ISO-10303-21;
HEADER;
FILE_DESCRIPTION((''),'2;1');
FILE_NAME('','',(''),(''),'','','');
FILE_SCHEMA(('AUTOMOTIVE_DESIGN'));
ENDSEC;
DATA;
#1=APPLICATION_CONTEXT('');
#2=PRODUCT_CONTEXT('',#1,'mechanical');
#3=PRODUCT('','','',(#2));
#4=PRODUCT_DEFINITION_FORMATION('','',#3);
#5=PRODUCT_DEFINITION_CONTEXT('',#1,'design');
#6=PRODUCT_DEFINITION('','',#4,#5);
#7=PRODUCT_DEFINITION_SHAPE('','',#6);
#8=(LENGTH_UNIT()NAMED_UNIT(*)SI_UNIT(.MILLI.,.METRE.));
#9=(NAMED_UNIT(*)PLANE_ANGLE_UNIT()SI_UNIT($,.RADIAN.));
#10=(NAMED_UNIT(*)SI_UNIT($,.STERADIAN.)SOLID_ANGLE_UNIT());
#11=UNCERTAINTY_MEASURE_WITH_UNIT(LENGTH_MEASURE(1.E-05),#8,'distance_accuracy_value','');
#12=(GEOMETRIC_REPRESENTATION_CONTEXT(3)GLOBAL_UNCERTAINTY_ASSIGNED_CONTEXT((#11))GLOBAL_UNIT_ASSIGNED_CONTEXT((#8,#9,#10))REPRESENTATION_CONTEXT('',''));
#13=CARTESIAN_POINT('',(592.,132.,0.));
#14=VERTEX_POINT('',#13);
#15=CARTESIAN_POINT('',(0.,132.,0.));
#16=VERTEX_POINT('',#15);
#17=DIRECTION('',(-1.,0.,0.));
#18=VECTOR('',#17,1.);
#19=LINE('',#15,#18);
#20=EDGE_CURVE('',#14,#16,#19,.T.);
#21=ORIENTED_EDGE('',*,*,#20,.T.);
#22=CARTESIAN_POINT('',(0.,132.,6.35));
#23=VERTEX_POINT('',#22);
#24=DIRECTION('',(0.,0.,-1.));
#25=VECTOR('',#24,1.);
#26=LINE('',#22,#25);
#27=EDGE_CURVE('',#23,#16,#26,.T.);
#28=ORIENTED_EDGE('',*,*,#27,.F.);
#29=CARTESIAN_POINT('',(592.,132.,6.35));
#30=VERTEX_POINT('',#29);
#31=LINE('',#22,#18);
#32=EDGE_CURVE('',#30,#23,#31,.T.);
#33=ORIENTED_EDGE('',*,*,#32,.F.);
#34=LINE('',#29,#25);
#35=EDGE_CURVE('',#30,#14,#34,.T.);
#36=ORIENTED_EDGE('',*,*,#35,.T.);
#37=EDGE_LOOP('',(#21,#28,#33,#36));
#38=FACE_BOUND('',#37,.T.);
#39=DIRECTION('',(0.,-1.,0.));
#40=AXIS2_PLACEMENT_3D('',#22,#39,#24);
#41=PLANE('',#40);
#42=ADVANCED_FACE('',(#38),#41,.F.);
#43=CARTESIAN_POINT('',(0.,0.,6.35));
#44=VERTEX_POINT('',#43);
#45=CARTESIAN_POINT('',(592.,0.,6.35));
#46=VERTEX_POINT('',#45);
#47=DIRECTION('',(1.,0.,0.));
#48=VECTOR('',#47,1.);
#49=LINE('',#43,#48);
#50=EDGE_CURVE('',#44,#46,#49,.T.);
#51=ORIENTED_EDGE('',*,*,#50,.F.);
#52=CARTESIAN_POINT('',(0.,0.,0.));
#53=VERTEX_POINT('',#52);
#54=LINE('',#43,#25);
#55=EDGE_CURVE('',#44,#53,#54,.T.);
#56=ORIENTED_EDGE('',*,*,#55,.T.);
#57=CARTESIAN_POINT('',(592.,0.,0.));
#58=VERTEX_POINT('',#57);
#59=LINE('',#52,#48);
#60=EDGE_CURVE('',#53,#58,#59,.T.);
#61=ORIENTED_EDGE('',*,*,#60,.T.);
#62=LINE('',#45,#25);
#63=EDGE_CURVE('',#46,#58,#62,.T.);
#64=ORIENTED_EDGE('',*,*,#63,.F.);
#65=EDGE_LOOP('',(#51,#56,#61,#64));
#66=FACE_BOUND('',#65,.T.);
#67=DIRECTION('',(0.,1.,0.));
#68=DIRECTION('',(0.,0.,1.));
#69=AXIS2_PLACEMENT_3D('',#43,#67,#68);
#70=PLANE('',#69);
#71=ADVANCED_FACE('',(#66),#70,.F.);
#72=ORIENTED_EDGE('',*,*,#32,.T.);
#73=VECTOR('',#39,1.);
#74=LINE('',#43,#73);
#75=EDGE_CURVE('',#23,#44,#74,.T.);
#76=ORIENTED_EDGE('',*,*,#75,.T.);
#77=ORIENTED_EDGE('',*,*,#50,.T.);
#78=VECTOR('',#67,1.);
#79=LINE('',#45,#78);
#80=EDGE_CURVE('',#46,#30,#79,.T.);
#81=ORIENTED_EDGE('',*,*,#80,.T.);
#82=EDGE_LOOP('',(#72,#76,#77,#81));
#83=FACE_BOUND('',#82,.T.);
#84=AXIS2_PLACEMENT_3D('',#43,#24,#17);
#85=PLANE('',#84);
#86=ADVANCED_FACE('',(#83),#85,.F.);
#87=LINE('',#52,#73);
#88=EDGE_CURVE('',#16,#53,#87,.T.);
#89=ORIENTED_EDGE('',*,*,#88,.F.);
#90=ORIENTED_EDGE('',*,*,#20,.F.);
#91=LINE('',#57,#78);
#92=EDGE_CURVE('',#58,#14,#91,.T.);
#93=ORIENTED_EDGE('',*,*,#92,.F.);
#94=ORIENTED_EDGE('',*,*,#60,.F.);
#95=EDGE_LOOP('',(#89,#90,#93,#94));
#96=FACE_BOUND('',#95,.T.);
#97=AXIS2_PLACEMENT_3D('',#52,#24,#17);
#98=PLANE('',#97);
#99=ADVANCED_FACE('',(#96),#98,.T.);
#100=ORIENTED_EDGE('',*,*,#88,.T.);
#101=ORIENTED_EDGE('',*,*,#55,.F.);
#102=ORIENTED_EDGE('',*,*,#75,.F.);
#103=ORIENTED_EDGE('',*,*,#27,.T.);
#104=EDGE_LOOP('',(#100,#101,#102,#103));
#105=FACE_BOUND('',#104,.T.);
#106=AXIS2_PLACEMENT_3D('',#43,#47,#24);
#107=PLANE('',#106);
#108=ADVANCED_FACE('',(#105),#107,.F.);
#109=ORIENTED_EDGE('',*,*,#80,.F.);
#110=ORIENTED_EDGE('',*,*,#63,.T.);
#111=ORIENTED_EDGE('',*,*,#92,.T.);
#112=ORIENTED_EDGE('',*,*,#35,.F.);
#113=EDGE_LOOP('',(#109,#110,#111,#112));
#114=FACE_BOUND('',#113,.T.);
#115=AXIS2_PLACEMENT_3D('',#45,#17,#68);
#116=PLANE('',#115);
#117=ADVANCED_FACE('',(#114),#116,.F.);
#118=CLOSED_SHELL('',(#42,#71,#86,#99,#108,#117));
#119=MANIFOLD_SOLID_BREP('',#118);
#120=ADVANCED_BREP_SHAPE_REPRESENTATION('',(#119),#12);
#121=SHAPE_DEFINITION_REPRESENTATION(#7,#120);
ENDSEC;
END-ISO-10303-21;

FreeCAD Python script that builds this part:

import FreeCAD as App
import Part
import Sketcher

V = App.Vector


def add_polygon(sketch, points):
    """Adds a closed chain of lines whose ends are joined by coincident constraints."""
    first, n = sketch.GeometryCount, len(points)
    for a, b in zip(points, points[1:] + points[:1]):
        sketch.addGeometry(Part.LineSegment(App.Vector(*a, 0), App.Vector(*b, 0)), False)
    for i in range(n):
        sketch.addConstraint(Sketcher.Constraint("Coincident", first + i, 2, first + (i + 1) % n, 1))

doc = App.newDocument("Part")
body = doc.addObject("PartDesign::Body", "Body")

sketch1 = body.newObject("Sketcher::SketchObject", "Sketch")
sketch1.AttachmentSupport = (doc.getObject("XY_Plane"), [""])
sketch1.MapMode = "FlatFace"
add_polygon(sketch1, [(0, 132), (0, 0), (592, 0), (592, 132)])
sketch1.addConstraint([
    Sketcher.Constraint("Vertical", 0),
    Sketcher.Constraint("Horizontal", 1),
    Sketcher.Constraint("Vertical", 2),
    Sketcher.Constraint("Horizontal", 3),
    Sketcher.Constraint("Coincident", 0, 2, -1, 1),
    Sketcher.Constraint("DistanceX", 1, 1, 1, 2, 592.0),
    Sketcher.Constraint("DistanceY", 0, 2, 0, 1, 132.0),
])
pad1 = body.newObject("PartDesign::Pad", "Pad")
pad1.Profile = sketch1
pad1.Length = 6.35

doc.recompute()
